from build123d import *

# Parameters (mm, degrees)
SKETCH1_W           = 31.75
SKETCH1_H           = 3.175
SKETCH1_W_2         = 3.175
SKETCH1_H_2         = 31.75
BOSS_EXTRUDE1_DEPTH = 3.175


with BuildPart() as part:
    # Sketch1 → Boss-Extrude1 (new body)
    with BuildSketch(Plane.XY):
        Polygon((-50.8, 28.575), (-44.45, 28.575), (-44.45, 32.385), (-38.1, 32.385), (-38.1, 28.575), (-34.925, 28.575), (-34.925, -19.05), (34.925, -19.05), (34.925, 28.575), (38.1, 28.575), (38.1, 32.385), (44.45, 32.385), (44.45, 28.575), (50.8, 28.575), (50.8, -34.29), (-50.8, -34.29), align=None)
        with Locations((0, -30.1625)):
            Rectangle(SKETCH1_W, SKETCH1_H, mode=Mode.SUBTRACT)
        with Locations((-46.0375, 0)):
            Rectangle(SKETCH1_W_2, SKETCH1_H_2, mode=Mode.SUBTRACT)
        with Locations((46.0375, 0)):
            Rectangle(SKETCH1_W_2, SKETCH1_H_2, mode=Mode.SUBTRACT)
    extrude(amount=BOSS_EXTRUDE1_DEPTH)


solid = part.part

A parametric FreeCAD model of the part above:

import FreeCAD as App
import Part
import Sketcher

V = App.Vector
Q = App.Units.Quantity


def add_polygon(sketch, points):
    """Adds a closed chain of lines whose ends are joined by coincident constraints."""
    first, n = sketch.GeometryCount, len(points)
    for a, b in zip(points, points[1:] + points[:1]):
        sketch.addGeometry(Part.LineSegment(App.Vector(*a, 0), App.Vector(*b, 0)), False)
    for i in range(n):
        sketch.addConstraint(Sketcher.Constraint("Coincident", first + i, 2, first + (i + 1) % n, 1))

doc = App.newDocument("Part")
body = doc.addObject("PartDesign::Body", "Body")

# Sketch on XY plane
sketch1 = body.newObject("Sketcher::SketchObject", "Sketch")
sketch1.AttachmentSupport = (doc.getObject("XY_Plane"), [""])
sketch1.MapMode = "FlatFace"
add_polygon(sketch1, [(-44.45, 28.575), (-50.8, 28.575), (-50.8, -34.29), (50.8, -34.29), (50.8, 28.575), (44.45, 28.575), (44.45, 32.385), (38.1, 32.385), (38.1, 28.575), (34.925, 28.575), (34.925, -19.05), (-34.925, -19.05), (-34.925, 28.575), (-38.1, 28.575), (-38.1, 32.385), (-44.45, 32.385)])  # lines 0-15
add_polygon(sketch1, [(-15.875, -31.75), (-15.875, -28.575), (15.875, -28.575), (15.875, -31.75)])  # lines 16-19
add_polygon(sketch1, [(44.45, -15.875), (44.45, 15.875), (47.625, 15.875), (47.625, -15.875)])  # lines 20-23
add_polygon(sketch1, [(-47.625, -15.875), (-47.625, 15.875), (-44.45, 15.875), (-44.45, -15.875)])  # lines 24-27
sketch1.addConstraint([
    Sketcher.Constraint("Horizontal", 0),
    Sketcher.Constraint("Vertical", 1),
    Sketcher.Constraint("Horizontal", 2),
    Sketcher.Constraint("Vertical", 3),
    Sketcher.Constraint("Horizontal", 4),
    Sketcher.Constraint("Vertical", 5),
    Sketcher.Constraint("Horizontal", 6),
    Sketcher.Constraint("Vertical", 7),
    Sketcher.Constraint("Horizontal", 8),
    Sketcher.Constraint("Vertical", 9),
    Sketcher.Constraint("Horizontal", 10),
    Sketcher.Constraint("Vertical", 11),
    Sketcher.Constraint("Horizontal", 12),
    Sketcher.Constraint("Vertical", 13),
    Sketcher.Constraint("Horizontal", 14),
    Sketcher.Constraint("Vertical", 15),
    Sketcher.Constraint("Vertical", 16),
    Sketcher.Constraint("Horizontal", 17),
    Sketcher.Constraint("Vertical", 18),
    Sketcher.Constraint("Horizontal", 19),
    Sketcher.Constraint("Vertical", 20),
    Sketcher.Constraint("Horizontal", 21),
    Sketcher.Constraint("Vertical", 22),
    Sketcher.Constraint("Horizontal", 23),
    Sketcher.Constraint("Vertical", 24),
    Sketcher.Constraint("Horizontal", 25),
    Sketcher.Constraint("Vertical", 26),
    Sketcher.Constraint("Horizontal", 27),
    Sketcher.Constraint("Symmetric", 22, 2, 24, 2, -1, 1),
    Sketcher.Constraint("Symmetric", 20, 2, 26, 2, -1, 1),
    Sketcher.Constraint("Symmetric", 0, 2, 3, 2, -2),
    Sketcher.Constraint("Symmetric", 8, 2, 11, 2, -2),
    Sketcher.Constraint("Symmetric", 6, 2, 13, 2, -2),
    Sketcher.Constraint("Horizontal", 4, 2, 7, 2),
    Sketcher.Constraint("Horizontal", 21, 2, 24, 2),
    Sketcher.Constraint("Vertical", 5, 2, 20, 2),
    Sketcher.Constraint("Vertical", 15, 2, 25, 2),
    Sketcher.Constraint("Equal", 4, 6),
    Sketcher.Constraint("Equal", 12, 21),
    Sketcher.Constraint("Equal", 27, 16),
    Sketcher.Constraint("Equal", 19, 20),
    Sketcher.Constraint("DistanceX", 2, 1, 2, 2, Q("4 in")),
    Sketcher.Constraint("DistanceX", 16, 2, 9, 2, Q("2 in")),
    Sketcher.Constraint("DistanceX", 10, 2, 17, 2, Q("2 in")),
    Sketcher.Constraint("DistanceX", 0, 2, 0, 1, Q("0.25 in")),
    Sketcher.Constraint("DistanceX", 10, 2, 10, 1, Q("2.75 in")),
    Sketcher.Constraint("DistanceY", 5, 1, 5, 2, Q("0.15 in")),
    Sketcher.Constraint("DistanceY", 2, 2, 9, 2, Q("0.6 in")),
    Sketcher.Constraint("DistanceY", 18, 2, 9, 2, Q("0.5 in")),
    Sketcher.Constraint("DistanceY", 20, 2, 4, 2, Q("0.5 in")),
    Sketcher.Constraint("DistanceY", 17, 2, 22, 2, Q("0.5 in")),
])
pad1 = body.newObject("PartDesign::Pad", "Pad")
pad1.Profile = sketch1
pad1.Length = Q("0.125 in")

doc.recompute()
